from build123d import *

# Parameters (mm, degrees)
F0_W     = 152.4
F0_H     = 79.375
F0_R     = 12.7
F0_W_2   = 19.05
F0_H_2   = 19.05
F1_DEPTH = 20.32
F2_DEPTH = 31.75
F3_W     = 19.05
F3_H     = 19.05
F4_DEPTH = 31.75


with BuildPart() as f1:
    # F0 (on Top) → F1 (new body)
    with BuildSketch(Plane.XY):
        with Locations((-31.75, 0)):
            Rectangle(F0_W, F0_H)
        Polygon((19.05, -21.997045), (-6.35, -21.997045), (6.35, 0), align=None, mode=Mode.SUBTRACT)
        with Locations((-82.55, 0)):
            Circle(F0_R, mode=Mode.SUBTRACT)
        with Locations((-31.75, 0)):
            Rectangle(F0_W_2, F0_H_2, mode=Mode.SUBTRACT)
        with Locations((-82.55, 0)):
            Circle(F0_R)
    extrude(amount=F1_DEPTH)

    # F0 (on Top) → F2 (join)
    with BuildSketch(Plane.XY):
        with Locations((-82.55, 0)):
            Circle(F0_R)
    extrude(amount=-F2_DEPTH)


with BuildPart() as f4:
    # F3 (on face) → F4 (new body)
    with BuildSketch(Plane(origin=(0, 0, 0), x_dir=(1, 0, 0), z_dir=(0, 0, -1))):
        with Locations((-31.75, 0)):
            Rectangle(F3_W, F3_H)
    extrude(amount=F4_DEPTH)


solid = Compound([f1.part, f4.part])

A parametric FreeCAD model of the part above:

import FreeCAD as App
import Part
import Sketcher
Q = App.Units.Quantity


def add_polygon(sketch, points):
    """Adds a closed chain of lines whose ends are joined by coincident constraints."""
    first, n = sketch.GeometryCount, len(points)
    for a, b in zip(points, points[1:] + points[:1]):
        sketch.addGeometry(Part.LineSegment(App.Vector(*a, 0), App.Vector(*b, 0)), False)
    for i in range(n):
        sketch.addConstraint(Sketcher.Constraint("Coincident", first + i, 2, first + (i + 1) % n, 1))

doc = App.newDocument("Part")
body = doc.addObject("PartDesign::Body", "Body")

# Sketch on XY plane
sketch1 = body.newObject("Sketcher::SketchObject", "Sketch")
sketch1.AttachmentSupport = (doc.getObject("XY_Plane"), [""])
sketch1.MapMode = "FlatFace"
add_polygon(sketch1, [(-108, 40), (-108, -40), (44, -40), (44, 40)])  # lines 0-3
add_polygon(sketch1, [(6, 0), (19, -22), (-6, -22)])  # lines 4-6
add_polygon(sketch1, [(-22, -10), (-41, -10), (-41, 10), (-22, 10)])  # lines 7-10
sketch1.addConstraint([
    Sketcher.Constraint("Vertical", 0),
    Sketcher.Constraint("Horizontal", 1),
    Sketcher.Constraint("Vertical", 2),
    Sketcher.Constraint("Horizontal", 3),
    Sketcher.Constraint("Horizontal", 5),
    Sketcher.Constraint("Horizontal", 7),
    Sketcher.Constraint("Vertical", 8),
    Sketcher.Constraint("Horizontal", 9),
    Sketcher.Constraint("Vertical", 10),
    Sketcher.Constraint("PointOnObject", 6, 2, -1),
    Sketcher.Constraint("Equal", 9, 8),
    Sketcher.Constraint("Equal", 4, 6),
    Sketcher.Constraint("DistanceX", 1, 1, 1, 2, Q("6 in")),
    Sketcher.Constraint("DistanceX", 5, 2, 5, 1, Q("1 in")),
    Sketcher.Constraint("Distance", 4, Q("1 in")),
    Sketcher.Constraint("DistanceX", 4, 2, 1, 2, Q("1 in")),
    Sketcher.Constraint("DistanceX", 7, 2, 7, 1, Q("0.75 in")),
    Sketcher.Constraint("DistanceY", 0, 2, 0, 1, Q("3.125 in")),
    Sketcher.Constraint("DistanceX", 0, 2, -1, 1, Q("4.25 in")),
    Sketcher.Constraint("DistanceY", 0, 2, -1, 1, Q("1.5625 in")),
    Sketcher.Constraint("DistanceX", 7, 2, -1, 1, Q("1.625 in")),
    Sketcher.Constraint("DistanceY", 7, 2, -1, 1, Q("0.375 in")),
])
pad1 = body.newObject("PartDesign::Pad", "Pad")
pad1.Profile = sketch1
pad1.Length = Q("0.8 in")

# Sketch on XY plane
sketch2 = body.newObject("Sketcher::SketchObject", "Sketch001")
sketch2.AttachmentSupport = (doc.getObject("XY_Plane"), [""])
sketch2.MapMode = "FlatFace"
sketch2.addGeometry(Part.Circle(App.Vector(-83, 0, 0), App.Vector(0, 0, 1), 13), False)
sketch2.addConstraint([
    Sketcher.Constraint("PointOnObject", 0, 3, -1),
    Sketcher.Constraint("Diameter", 0, Q("1 in")),
    Sketcher.Constraint("DistanceX", 0, 3, -1, 1, Q("3.25 in")),
])
pad2 = body.newObject("PartDesign::Pad", "Pad001")
pad2.Profile = sketch2
pad2.Length = Q("1.25 in")
pad2.Reversed = True
body2 = doc.addObject("PartDesign::Body", "Body001")

# Sketch on XY plane
sketch3 = body2.newObject("Sketcher::SketchObject", "Sketch002")
sketch3.AttachmentSupport = (doc.getObject("XY_Plane001"), [""])
sketch3.MapMode = "FlatFace"
add_polygon(sketch3, [(-41, -10), (-41, 10), (-22, 10), (-22, -10)])  # lines 0-3
sketch3.addConstraint([
    Sketcher.Constraint("Vertical", 0),
    Sketcher.Constraint("Horizontal", 1),
    Sketcher.Constraint("Vertical", 2),
    Sketcher.Constraint("Horizontal", 3),
    Sketcher.Constraint("Equal", 3, 0),
    Sketcher.Constraint("DistanceX", 1, 1, 1, 2, Q("0.75 in")),
    Sketcher.Constraint("DistanceX", 0, 2, -1, 1, Q("1.625 in")),
    Sketcher.Constraint("DistanceY", -1, 1, 0, 2, Q("0.375 in")),
])
pad3 = body2.newObject("PartDesign::Pad", "Pad002")
pad3.Profile = sketch3
pad3.Length = Q("1.25 in")
pad3.Reversed = True

doc.recompute()
